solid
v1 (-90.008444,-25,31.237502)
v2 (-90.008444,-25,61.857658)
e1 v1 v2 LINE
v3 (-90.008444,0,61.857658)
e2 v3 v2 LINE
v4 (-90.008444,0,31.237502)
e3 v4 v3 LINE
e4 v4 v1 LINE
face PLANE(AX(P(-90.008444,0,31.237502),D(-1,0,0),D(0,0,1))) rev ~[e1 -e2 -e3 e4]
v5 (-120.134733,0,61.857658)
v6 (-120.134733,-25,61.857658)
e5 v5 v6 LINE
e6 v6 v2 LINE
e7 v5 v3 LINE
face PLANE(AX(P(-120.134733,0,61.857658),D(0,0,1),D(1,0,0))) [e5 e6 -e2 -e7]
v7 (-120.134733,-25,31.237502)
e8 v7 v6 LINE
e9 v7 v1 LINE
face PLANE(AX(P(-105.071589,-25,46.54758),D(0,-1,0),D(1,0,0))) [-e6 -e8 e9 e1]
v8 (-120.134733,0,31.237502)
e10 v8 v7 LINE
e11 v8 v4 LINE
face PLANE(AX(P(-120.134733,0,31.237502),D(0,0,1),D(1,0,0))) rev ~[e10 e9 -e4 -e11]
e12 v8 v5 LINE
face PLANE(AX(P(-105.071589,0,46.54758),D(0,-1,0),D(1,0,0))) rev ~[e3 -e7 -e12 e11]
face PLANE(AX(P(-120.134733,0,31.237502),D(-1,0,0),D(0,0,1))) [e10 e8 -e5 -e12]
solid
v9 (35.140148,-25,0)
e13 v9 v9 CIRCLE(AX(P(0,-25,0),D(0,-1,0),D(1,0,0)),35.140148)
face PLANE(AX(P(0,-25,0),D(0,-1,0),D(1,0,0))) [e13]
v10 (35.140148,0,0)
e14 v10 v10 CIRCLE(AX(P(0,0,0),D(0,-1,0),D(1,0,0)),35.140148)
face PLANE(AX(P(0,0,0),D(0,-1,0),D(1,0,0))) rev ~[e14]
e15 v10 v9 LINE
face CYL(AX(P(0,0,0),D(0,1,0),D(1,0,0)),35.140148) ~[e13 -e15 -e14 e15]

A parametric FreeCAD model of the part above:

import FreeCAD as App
import Part
import Sketcher
from FreeCAD import Vector
Q = App.Units.Quantity


def add_polygon(sketch, points):
    """Adds a closed chain of lines whose ends are joined by coincident constraints."""
    first, n = sketch.GeometryCount, len(points)
    for a, b in zip(points, points[1:] + points[:1]):
        sketch.addGeometry(Part.LineSegment(App.Vector(*a, 0), App.Vector(*b, 0)), False)
    for i in range(n):
        sketch.addConstraint(Sketcher.Constraint("Coincident", first + i, 2, first + (i + 1) % n, 1))

doc = App.newDocument("Part")
body = doc.addObject("PartDesign::Body", "Body")

sketch1 = doc.addObject("Sketcher::SketchObject", "Sketch")
body.addObject(sketch1)
sketch1.AttachmentSupport = (doc.XZ_Plane, [""])
sketch1.MapMode = "FlatFace"
sketch1.addGeometry(Part.Circle(Vector(0, 0, 0), Vector(0, 0, 1), 35.140148), False)
sketch1.addConstraint(Sketcher.Constraint("Coincident", 0, 3, -1, 1))
sketch1.addConstraint(Sketcher.Constraint("Diameter", 0, Q("70.280296 mm")))
pad1 = doc.addObject("PartDesign::Pad", "Pad")
body.addObject(pad1)
pad1.Profile = sketch1
pad1.Length = 25
body2 = doc.addObject("PartDesign::Body", "Body001")

sketch2 = doc.addObject("Sketcher::SketchObject", "Sketch001")
body2.addObject(sketch2)
sketch2.AttachmentSupport = (doc.getObject("XZ_Plane001"), [""])
sketch2.MapMode = "FlatFace"
add_polygon(sketch2, [(-120.134733, 61.857658), (-120.134733, 31.237502), (-90.008444, 31.237502), (-90.008444, 61.857658)])
sketch2.addConstraint(Sketcher.Constraint("Vertical", 0))
sketch2.addConstraint(Sketcher.Constraint("Horizontal", 1))
sketch2.addConstraint(Sketcher.Constraint("Vertical", 2))
sketch2.addConstraint(Sketcher.Constraint("Horizontal", 3))
sketch2.addConstraint(Sketcher.Constraint("DistanceX", 1, 1, 1, 2, Q("30.126289 mm")))
sketch2.addConstraint(Sketcher.Constraint("DistanceY", -1, 1, 0, 2, Q("31.237502 mm")))
sketch2.addConstraint(Sketcher.Constraint("DistanceY", 0, 2, 0, 1, Q("30.620157 mm")))
sketch2.addConstraint(Sketcher.Constraint("DistanceX", 0, 2, -1, 1, Q("120.134733 mm")))
pad2 = doc.addObject("PartDesign::Pad", "Pad001")
body2.addObject(pad2)
pad2.Profile = sketch2
pad2.Length = 25

doc.recompute()
